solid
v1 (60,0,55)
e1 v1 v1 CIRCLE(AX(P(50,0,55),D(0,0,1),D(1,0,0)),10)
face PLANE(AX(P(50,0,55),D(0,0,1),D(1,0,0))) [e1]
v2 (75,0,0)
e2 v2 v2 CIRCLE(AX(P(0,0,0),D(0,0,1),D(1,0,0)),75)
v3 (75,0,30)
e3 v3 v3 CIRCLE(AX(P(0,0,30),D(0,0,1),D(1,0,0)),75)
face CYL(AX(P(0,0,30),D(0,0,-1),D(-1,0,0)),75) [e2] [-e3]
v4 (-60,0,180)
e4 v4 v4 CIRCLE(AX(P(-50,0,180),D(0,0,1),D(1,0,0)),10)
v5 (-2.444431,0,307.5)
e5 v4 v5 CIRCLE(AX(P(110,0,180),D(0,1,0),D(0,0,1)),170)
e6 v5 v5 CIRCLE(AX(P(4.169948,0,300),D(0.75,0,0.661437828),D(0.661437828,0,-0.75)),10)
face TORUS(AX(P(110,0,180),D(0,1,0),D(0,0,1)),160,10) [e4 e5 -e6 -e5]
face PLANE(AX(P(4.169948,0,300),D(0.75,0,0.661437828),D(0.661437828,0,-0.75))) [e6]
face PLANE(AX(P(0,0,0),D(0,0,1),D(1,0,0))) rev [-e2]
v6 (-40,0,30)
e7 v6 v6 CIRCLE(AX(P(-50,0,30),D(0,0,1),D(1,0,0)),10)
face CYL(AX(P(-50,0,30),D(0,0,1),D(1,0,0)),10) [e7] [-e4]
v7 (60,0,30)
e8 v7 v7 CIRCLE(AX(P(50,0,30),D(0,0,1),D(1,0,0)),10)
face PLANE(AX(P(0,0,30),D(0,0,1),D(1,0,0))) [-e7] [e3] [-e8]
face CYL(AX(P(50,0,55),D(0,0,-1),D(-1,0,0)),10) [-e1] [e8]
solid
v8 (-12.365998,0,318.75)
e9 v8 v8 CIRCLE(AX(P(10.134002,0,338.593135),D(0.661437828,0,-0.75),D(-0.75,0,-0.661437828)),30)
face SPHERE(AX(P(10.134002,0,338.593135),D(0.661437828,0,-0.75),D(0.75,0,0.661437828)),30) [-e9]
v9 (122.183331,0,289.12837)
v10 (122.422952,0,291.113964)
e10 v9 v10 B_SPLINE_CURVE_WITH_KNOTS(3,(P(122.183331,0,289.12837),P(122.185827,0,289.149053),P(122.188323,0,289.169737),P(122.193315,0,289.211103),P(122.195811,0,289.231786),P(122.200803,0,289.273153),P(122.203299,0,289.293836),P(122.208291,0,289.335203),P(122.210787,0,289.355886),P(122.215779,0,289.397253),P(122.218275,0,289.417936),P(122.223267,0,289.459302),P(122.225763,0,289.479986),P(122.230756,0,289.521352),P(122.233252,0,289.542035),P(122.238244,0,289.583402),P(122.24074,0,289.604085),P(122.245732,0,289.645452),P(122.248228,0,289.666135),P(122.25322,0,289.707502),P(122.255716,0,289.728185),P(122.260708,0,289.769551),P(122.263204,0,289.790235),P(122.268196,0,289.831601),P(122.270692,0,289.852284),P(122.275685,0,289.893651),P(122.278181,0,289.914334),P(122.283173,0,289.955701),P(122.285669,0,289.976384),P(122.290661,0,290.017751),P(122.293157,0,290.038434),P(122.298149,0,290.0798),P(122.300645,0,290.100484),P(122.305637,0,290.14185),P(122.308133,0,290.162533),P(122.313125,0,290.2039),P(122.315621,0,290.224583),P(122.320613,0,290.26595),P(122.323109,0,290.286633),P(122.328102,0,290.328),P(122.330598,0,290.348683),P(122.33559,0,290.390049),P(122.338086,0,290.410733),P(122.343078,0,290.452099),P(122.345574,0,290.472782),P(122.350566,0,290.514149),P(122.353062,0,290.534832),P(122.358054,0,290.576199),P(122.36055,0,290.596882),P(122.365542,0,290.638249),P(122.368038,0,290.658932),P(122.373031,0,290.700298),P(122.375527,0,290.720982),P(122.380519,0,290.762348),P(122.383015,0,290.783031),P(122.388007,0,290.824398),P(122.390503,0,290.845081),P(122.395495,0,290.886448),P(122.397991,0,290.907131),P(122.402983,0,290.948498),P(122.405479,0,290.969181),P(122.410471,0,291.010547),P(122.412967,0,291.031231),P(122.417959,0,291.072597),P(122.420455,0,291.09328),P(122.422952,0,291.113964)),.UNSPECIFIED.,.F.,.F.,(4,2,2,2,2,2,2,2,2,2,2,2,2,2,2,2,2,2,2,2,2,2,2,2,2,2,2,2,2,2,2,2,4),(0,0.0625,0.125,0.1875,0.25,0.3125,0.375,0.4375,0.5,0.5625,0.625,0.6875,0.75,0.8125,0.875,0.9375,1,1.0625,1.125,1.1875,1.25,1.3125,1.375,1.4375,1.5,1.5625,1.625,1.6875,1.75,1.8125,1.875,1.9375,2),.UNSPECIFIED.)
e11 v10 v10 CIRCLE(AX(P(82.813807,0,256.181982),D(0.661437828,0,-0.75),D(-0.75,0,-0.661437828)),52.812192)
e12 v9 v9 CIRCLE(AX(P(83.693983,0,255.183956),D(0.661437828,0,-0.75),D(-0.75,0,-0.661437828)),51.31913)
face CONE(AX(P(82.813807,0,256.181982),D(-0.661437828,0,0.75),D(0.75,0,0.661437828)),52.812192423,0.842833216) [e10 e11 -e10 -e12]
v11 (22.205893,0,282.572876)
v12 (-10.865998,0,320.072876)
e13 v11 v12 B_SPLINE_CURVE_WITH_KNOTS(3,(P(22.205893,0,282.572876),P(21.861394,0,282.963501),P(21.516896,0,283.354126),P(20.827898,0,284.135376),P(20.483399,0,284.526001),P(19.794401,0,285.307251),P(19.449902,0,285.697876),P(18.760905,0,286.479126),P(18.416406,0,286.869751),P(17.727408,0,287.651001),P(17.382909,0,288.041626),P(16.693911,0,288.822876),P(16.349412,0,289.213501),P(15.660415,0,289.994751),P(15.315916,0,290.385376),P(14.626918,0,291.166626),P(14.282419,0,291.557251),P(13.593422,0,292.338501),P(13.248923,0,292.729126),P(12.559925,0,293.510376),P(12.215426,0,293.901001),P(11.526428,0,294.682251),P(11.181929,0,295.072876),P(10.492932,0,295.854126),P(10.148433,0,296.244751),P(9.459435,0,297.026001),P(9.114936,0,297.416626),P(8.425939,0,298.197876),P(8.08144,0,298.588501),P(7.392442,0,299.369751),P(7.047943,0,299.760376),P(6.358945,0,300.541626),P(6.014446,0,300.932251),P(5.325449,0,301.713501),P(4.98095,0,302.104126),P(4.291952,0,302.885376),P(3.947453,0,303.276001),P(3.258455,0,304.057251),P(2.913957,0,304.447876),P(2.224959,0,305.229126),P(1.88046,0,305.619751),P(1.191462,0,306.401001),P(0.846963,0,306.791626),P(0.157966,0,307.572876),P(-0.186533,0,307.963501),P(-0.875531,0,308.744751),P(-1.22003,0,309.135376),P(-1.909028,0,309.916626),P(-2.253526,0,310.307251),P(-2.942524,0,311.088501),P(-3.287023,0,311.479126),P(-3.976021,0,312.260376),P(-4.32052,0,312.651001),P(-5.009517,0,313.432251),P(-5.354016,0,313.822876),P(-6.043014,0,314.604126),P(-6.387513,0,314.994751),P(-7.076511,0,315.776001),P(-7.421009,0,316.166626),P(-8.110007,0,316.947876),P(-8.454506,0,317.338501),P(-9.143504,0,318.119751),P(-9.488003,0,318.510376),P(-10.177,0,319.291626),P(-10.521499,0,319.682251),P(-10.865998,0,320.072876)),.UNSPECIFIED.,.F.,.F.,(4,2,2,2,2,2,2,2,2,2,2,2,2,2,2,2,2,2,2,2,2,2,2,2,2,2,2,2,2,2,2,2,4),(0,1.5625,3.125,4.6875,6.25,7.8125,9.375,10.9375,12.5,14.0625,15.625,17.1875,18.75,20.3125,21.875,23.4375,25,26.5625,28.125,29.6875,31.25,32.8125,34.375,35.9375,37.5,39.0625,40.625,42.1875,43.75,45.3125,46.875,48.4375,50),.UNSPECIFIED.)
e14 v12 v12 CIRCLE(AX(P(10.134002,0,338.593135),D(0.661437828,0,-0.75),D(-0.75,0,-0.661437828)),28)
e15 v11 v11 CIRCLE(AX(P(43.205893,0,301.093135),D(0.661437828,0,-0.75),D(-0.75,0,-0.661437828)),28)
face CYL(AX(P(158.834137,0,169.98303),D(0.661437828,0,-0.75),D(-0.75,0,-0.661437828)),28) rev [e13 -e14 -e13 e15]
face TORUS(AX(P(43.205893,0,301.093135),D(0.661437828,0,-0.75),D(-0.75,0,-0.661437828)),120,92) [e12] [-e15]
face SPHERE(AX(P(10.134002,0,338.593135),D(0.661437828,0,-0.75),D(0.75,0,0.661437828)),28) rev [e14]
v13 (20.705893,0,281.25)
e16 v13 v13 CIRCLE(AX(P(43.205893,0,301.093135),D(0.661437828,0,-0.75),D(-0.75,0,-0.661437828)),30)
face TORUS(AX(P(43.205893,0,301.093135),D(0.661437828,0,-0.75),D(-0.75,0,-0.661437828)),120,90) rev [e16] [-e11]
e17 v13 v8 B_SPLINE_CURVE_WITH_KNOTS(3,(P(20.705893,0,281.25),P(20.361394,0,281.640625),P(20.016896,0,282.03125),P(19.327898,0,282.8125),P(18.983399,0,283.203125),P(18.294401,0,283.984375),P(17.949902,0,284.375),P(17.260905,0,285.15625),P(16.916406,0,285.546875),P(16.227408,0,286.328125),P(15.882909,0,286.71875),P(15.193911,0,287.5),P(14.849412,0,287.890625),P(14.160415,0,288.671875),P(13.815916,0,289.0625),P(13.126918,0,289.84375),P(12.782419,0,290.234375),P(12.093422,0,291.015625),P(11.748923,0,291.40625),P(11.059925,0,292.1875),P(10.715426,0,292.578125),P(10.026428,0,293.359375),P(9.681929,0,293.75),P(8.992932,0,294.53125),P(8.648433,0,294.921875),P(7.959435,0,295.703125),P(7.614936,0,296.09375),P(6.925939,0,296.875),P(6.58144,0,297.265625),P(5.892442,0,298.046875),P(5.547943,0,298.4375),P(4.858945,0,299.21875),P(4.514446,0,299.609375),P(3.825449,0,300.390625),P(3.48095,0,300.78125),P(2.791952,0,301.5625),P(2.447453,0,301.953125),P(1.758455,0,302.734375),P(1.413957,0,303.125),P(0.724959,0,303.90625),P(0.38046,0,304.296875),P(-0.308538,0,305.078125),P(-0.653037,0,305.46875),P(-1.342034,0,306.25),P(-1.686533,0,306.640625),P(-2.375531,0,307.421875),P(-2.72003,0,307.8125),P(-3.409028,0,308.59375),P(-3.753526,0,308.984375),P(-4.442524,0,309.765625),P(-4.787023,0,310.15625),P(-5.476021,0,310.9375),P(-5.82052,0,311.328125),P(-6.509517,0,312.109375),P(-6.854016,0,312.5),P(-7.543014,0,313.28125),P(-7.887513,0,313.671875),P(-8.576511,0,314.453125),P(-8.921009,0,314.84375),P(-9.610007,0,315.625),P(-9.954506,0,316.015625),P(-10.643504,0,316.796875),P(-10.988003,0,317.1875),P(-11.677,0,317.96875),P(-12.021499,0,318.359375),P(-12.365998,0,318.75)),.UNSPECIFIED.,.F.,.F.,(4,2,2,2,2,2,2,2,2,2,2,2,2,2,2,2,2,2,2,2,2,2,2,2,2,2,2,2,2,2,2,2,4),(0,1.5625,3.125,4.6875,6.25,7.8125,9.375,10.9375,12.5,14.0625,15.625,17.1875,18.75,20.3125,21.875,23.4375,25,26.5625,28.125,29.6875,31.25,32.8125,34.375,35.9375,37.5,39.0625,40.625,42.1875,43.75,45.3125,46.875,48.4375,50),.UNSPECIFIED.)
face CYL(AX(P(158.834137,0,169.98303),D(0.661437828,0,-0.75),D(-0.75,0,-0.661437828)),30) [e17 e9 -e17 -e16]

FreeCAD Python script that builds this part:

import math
import FreeCAD as App
import Part
import Sketcher
from FreeCAD import Vector

doc = App.newDocument("Part")
body = doc.addObject("PartDesign::Body", "Body")

# Sketch on XY plane
sketch1 = doc.addObject("Sketcher::SketchObject", "Sketch")
body.addObject(sketch1)
sketch1.AttachmentSupport = (doc.XY_Plane, [""])
sketch1.MapMode = "FlatFace"
sketch1.addGeometry(Part.Circle(Vector(0, 0, 0), Vector(0, 0, 1), 75), False)
sketch1.addConstraint([
    Sketcher.Constraint("Coincident", 0, 3, -1, 1),
    Sketcher.Constraint("Diameter", 0, 150.0),
])
pad1 = doc.addObject("PartDesign::Pad", "Pad")
body.addObject(pad1)
pad1.Profile = sketch1
pad1.Length = 30

# Sketch on XY plane
sketch2 = doc.addObject("Sketcher::SketchObject", "Sketch001")
body.addObject(sketch2)
sketch2.AttachmentSupport = (doc.XY_Plane, [""])
sketch2.MapMode = "FlatFace"
sketch2.AttachmentOffset = App.Placement(Vector(0, 0, 30), App.Rotation())
sketch2.addGeometry(Part.Circle(Vector(50, 0, 0), Vector(0, 0, 1), 10), False)
sketch2.addConstraint([
    Sketcher.Constraint("PointOnObject", 0, 3, -1),
    Sketcher.Constraint("Diameter", 0, 20.0),
    Sketcher.Constraint("DistanceX", -1, 1, 0, 3, 50.0),
])
pad2 = doc.addObject("PartDesign::Pad", "Pad001")
body.addObject(pad2)
pad2.Profile = sketch2
pad2.Length = 25

# Sketch on XY plane
sketch3 = doc.addObject("Sketcher::SketchObject", "Sketch002")
body.addObject(sketch3)
sketch3.AttachmentSupport = (doc.XY_Plane, [""])
sketch3.MapMode = "FlatFace"
sketch3.AttachmentOffset = App.Placement(Vector(0, 0, 30), App.Rotation())
sketch3.addGeometry(Part.Circle(Vector(-50, 0, 0), Vector(0, 0, 1), 10), False)
sketch3.addConstraint([
    Sketcher.Constraint("PointOnObject", 0, 3, -1),
    Sketcher.Constraint("Diameter", 0, 20.0),
    Sketcher.Constraint("DistanceX", 0, 3, -1, 1, 50.0),
])

# Sketch on XZ plane
sketch4 = doc.addObject("Sketcher::SketchObject", "Sketch003")
body.addObject(sketch4)
sketch4.AttachmentSupport = (doc.XZ_Plane, [""])
sketch4.MapMode = "FlatFace"
sketch4.addGeometry([
    Part.LineSegment(Vector(-50, 30, 0), Vector(-50, 180, 0)),
    Part.ArcOfCircle(Part.Circle(Vector(110, 180, 0), Vector(0, 0, 1), 160), math.radians(131), math.radians(180)),
], False)
sketch4.addConstraint([
    Sketcher.Constraint("Tangent", 0, 2, 1, 2),
    Sketcher.Constraint("Vertical", 0),
    Sketcher.Constraint("Radius", 1, 160.0),
    Sketcher.Constraint("DistanceY", 0, 1, 0, 2, 150.0),
    Sketcher.Constraint("DistanceX", -1, 1, 1, 3, 110.0),
    Sketcher.Constraint("DistanceY", -1, 1, 1, 3, 180.0),
    Sketcher.Constraint("DistanceY", -1, 1, 1, 1, 300.0),
])
doc.recompute()

additivepipe = doc.addObject("PartDesign::AdditivePipe", "AdditivePipe")
body.addObject(additivepipe)
additivepipe.Profile = sketch3
additivepipe.Spine = (sketch4, ["Edge1", "Edge2"])
body2 = doc.addObject("PartDesign::Body", "Body001")

# Sketch on XZ plane
sketch5 = doc.addObject("Sketcher::SketchObject", "Sketch004")
body2.addObject(sketch5)
sketch5.AttachmentSupport = (doc.getObject("XZ_Plane001"), [""])
sketch5.MapMode = "FlatFace"
sketch5.addGeometry([
    Part.ArcOfCircle(Part.Circle(Vector(-46.794107, 221.720596, 0), Vector(0, 0, 1), 90), math.radians(-0.299592), math.radians(41.409622)),  # 0
    Part.LineSegment(Vector(20.705893, 281.25, 0), Vector(-12.365998, 318.75, 0)),  # 1
    Part.ArcOfCircle(Part.Circle(Vector(10.134002, 338.593135, 0), Vector(0, 0, 1), 30), math.radians(131.409622), math.radians(221.409622)),  # 2
    Part.LineSegment(Vector(-9.709133, 361.093135, 0), Vector(-8.386257, 359.593135, 0)),  # 3
    Part.ArcOfCircle(Part.Circle(Vector(10.134002, 338.593135, 0), Vector(0, 0, 1), 28), math.radians(131.409622), math.radians(221.409622)),  # 4
    Part.LineSegment(Vector(-10.865998, 320.072876, 0), Vector(22.205893, 282.572876, 0)),  # 5
    Part.ArcOfCircle(Part.Circle(Vector(-46.794107, 221.720596, 0), Vector(0, 0, 1), 92), math.radians(-0.299592), math.radians(41.409622)),  # 6
    Part.LineSegment(Vector(45.204636, 221.239542, 0), Vector(43.204663, 221.25, 0)),  # 7
], False)
sketch5.addGeometry(Part.LineSegment(Vector(83.693983, 255.183956, 0), Vector(-9.709133, 361.093135, 0)), True)  # axis
sketch5.addConstraint([
    Sketcher.Constraint("Tangent", 0, 2, 1, 1),
    Sketcher.Constraint("Tangent", 1, 2, 2, 2),
    Sketcher.Constraint("Coincident", 2, 1, 3, 1),
    Sketcher.Constraint("Coincident", 3, 2, 4, 1),
    Sketcher.Constraint("Tangent", 4, 2, 5, 1),
    Sketcher.Constraint("Tangent", 5, 2, 6, 2),
    Sketcher.Constraint("Coincident", 6, 1, 7, 1),
    Sketcher.Constraint("Coincident", 7, 2, 0, 1),
    Sketcher.Constraint("Coincident", 4, 3, 2, 3),
    Sketcher.Constraint("Coincident", 6, 3, 0, 3),
    Sketcher.Constraint("Coincident", 8, 2, 2, 1),
    Sketcher.Constraint("Parallel", 1, 3),
    Sketcher.Constraint("Parallel", 3, 5),
    Sketcher.Constraint("Parallel", 5, 8),
    Sketcher.Constraint("Radius", 0, 90.0),
    Sketcher.Constraint("Radius", 2, 30.0),
    Sketcher.Constraint("Radius", 4, 28.0),
    Sketcher.Constraint("Distance", 1, 50.0),
    Sketcher.Constraint("DistanceY", 2, 3, 3, 2, 21.0),
    Sketcher.Constraint("DistanceX", 4, 2, 2, 3, 21.0),
    Sketcher.Constraint("DistanceY", 7, 2, 0, 2, 60.0),
    Sketcher.Constraint("DistanceY", -1, 1, 0, 2, 281.25),
    Sketcher.Constraint("DistanceX", -1, 1, 2, 3, 10.134002),
    Sketcher.Constraint("Distance", 8, 141.212238),
    Sketcher.Constraint("DistanceX", -1, 1, 6, 1, 45.204636),
])
revolution = doc.addObject("PartDesign::Revolution", "Revolution")
body2.addObject(revolution)
revolution.Profile = sketch5
revolution.ReferenceAxis = (sketch5, ["Axis0"])
revolution.Angle = 360

doc.recompute()
